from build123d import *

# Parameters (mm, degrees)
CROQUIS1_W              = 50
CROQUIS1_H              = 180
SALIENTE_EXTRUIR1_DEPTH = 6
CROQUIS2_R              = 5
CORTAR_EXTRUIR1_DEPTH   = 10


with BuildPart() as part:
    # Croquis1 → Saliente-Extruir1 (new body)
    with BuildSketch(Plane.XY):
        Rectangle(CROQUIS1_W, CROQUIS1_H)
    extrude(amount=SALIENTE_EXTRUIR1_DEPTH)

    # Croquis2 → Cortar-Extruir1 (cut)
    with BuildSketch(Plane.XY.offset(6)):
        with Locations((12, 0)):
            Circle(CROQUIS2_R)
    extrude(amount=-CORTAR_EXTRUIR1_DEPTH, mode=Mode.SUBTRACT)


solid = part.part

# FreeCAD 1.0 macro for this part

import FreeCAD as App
import Part
import Sketcher

doc = App.newDocument("Part")
body = doc.addObject("PartDesign::Body", "Body")

# Sketch on XY plane
sketch1 = body.newObject("Sketcher::SketchObject", "Sketch")
sketch1.AttachmentSupport = (doc.getObject("XY_Plane"), [""])
sketch1.MapMode = "FlatFace"
sketch1.addGeometry(Part.LineSegment(App.Vector(-25, 90, 0), App.Vector(-25, -90, 0)), False)
sketch1.addGeometry(Part.LineSegment(App.Vector(-25, -90, 0), App.Vector(25, -90, 0)), False)
sketch1.addGeometry(Part.LineSegment(App.Vector(25, -90, 0), App.Vector(25, 90, 0)), False)
sketch1.addGeometry(Part.LineSegment(App.Vector(25, 90, 0), App.Vector(-25, 90, 0)), False)
sketch1.addConstraint(Sketcher.Constraint("Coincident", 0, 2, 1, 1))
sketch1.addConstraint(Sketcher.Constraint("Coincident", 1, 2, 2, 1))
sketch1.addConstraint(Sketcher.Constraint("Coincident", 2, 2, 3, 1))
sketch1.addConstraint(Sketcher.Constraint("Coincident", 3, 2, 0, 1))
sketch1.addConstraint(Sketcher.Constraint("Vertical", 0))
sketch1.addConstraint(Sketcher.Constraint("Horizontal", 1))
sketch1.addConstraint(Sketcher.Constraint("Vertical", 2))
sketch1.addConstraint(Sketcher.Constraint("Horizontal", 3))
sketch1.addConstraint(Sketcher.Constraint("Symmetric", 0, 2, 2, 2, -1, 1))
sketch1.addConstraint(Sketcher.Constraint("DistanceX", 1, 1, 1, 2, 50.0))
sketch1.addConstraint(Sketcher.Constraint("DistanceY", 0, 2, 0, 1, 180.0))
pad1 = body.newObject("PartDesign::Pad", "Pad")
pad1.Profile = sketch1
pad1.Length = 6

# Sketch on XY plane
sketch2 = body.newObject("Sketcher::SketchObject", "Sketch001")
sketch2.AttachmentSupport = (doc.getObject("XY_Plane"), [""])
sketch2.MapMode = "FlatFace"
sketch2.AttachmentOffset = App.Placement(App.Vector(0, 0, 6), App.Rotation())
sketch2.addGeometry(Part.Circle(App.Vector(12, 0, 0), App.Vector(0, 0, 1), 5), False)
sketch2.addConstraint(Sketcher.Constraint("PointOnObject", 0, 3, -1))
sketch2.addConstraint(Sketcher.Constraint("Diameter", 0, 10.0))
sketch2.addConstraint(Sketcher.Constraint("DistanceX", -1, 1, 0, 3, 12.0))
pocket1 = body.newObject("PartDesign::Pocket", "Pocket")
pocket1.Profile = sketch2
pocket1.Length = 10

doc.recompute()
